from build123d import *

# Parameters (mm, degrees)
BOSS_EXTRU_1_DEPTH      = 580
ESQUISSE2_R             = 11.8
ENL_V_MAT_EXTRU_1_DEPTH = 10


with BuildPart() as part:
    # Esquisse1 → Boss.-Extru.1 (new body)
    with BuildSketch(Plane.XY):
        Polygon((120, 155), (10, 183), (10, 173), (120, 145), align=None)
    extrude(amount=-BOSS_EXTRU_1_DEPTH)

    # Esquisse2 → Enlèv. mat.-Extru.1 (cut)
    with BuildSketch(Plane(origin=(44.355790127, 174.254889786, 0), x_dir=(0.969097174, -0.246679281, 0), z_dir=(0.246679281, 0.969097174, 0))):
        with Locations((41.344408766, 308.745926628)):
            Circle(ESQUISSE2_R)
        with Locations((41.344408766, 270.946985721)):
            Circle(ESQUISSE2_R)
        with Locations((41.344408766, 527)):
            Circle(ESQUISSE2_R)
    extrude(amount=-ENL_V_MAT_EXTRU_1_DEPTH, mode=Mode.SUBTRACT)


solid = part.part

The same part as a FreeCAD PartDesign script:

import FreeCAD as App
import Part
import Sketcher
from FreeCAD import Vector


def add_polygon(sketch, points):
    """Adds a closed chain of lines whose ends are joined by coincident constraints."""
    first, n = sketch.GeometryCount, len(points)
    for a, b in zip(points, points[1:] + points[:1]):
        sketch.addGeometry(Part.LineSegment(App.Vector(*a, 0), App.Vector(*b, 0)), False)
    for i in range(n):
        sketch.addConstraint(Sketcher.Constraint("Coincident", first + i, 2, first + (i + 1) % n, 1))

doc = App.newDocument("Part")
body = doc.addObject("PartDesign::Body", "Body")

sketch1 = body.newObject("Sketcher::SketchObject", "Sketch")
sketch1.AttachmentSupport = (doc.getObject("XY_Plane"), [""])
sketch1.MapMode = "FlatFace"
add_polygon(sketch1, [(120, 155), (10, 183), (10, 173), (120, 145)])
sketch1.addConstraint(Sketcher.Constraint("Vertical", 1))
sketch1.addConstraint(Sketcher.Constraint("Vertical", 3))
sketch1.addConstraint(Sketcher.Constraint("Parallel", 0, 2))
sketch1.addConstraint(Sketcher.Constraint("DistanceY", 1, 2, 1, 1, 10.0))
sketch1.addConstraint(Sketcher.Constraint("DistanceX", -1, 1, 0, 2, 10.0))
sketch1.addConstraint(Sketcher.Constraint("DistanceY", -1, 1, 0, 2, 183.0))
sketch1.addConstraint(Sketcher.Constraint("DistanceX", -1, 1, 2, 2, 120.0))
sketch1.addConstraint(Sketcher.Constraint("DistanceY", -1, 1, 2, 2, 145.0))
pad1 = body.newObject("PartDesign::Pad", "Pad")
pad1.Profile = sketch1
pad1.Length = 580
pad1.Reversed = True

sketch2 = body.newObject("Sketcher::SketchObject", "Sketch001")
sketch2.Placement = App.Placement(Vector(44.35579, 174.25489, 0), App.Rotation(Vector(0.969097174, -0.246679281, 0), Vector(0, 0, -1), Vector(0.246679281, 0.969097174, 0), "ZXY"))
sketch2.addGeometry(Part.Circle(Vector(41, 309, 0), Vector(0, 0, 1), 12), False)
sketch2.addGeometry(Part.Circle(Vector(41, 271, 0), Vector(0, 0, 1), 12), False)
sketch2.addGeometry(Part.Circle(Vector(41, 527, 0), Vector(0, 0, 1), 12), False)
sketch2.addConstraint(Sketcher.Constraint("Equal", 0, 1))
sketch2.addConstraint(Sketcher.Constraint("Equal", 1, 2))
sketch2.addConstraint(Sketcher.Constraint("Vertical", 0, 3, 1, 3))
sketch2.addConstraint(Sketcher.Constraint("Vertical", 1, 3, 2, 3))
sketch2.addConstraint(Sketcher.Constraint("Diameter", 0, 23.6))
sketch2.addConstraint(Sketcher.Constraint("DistanceY", -1, 1, 2, 3, 527.0))
sketch2.addConstraint(Sketcher.Constraint("DistanceX", -1, 1, 0, 3, 41.344409))
sketch2.addConstraint(Sketcher.Constraint("DistanceY", 1, 3, 0, 3, 37.798941))
sketch2.addConstraint(Sketcher.Constraint("DistanceY", -1, 1, 0, 3, 308.745927))
pocket1 = body.newObject("PartDesign::Pocket", "Pocket")
pocket1.Profile = sketch2
pocket1.Length = 10

doc.recompute()
